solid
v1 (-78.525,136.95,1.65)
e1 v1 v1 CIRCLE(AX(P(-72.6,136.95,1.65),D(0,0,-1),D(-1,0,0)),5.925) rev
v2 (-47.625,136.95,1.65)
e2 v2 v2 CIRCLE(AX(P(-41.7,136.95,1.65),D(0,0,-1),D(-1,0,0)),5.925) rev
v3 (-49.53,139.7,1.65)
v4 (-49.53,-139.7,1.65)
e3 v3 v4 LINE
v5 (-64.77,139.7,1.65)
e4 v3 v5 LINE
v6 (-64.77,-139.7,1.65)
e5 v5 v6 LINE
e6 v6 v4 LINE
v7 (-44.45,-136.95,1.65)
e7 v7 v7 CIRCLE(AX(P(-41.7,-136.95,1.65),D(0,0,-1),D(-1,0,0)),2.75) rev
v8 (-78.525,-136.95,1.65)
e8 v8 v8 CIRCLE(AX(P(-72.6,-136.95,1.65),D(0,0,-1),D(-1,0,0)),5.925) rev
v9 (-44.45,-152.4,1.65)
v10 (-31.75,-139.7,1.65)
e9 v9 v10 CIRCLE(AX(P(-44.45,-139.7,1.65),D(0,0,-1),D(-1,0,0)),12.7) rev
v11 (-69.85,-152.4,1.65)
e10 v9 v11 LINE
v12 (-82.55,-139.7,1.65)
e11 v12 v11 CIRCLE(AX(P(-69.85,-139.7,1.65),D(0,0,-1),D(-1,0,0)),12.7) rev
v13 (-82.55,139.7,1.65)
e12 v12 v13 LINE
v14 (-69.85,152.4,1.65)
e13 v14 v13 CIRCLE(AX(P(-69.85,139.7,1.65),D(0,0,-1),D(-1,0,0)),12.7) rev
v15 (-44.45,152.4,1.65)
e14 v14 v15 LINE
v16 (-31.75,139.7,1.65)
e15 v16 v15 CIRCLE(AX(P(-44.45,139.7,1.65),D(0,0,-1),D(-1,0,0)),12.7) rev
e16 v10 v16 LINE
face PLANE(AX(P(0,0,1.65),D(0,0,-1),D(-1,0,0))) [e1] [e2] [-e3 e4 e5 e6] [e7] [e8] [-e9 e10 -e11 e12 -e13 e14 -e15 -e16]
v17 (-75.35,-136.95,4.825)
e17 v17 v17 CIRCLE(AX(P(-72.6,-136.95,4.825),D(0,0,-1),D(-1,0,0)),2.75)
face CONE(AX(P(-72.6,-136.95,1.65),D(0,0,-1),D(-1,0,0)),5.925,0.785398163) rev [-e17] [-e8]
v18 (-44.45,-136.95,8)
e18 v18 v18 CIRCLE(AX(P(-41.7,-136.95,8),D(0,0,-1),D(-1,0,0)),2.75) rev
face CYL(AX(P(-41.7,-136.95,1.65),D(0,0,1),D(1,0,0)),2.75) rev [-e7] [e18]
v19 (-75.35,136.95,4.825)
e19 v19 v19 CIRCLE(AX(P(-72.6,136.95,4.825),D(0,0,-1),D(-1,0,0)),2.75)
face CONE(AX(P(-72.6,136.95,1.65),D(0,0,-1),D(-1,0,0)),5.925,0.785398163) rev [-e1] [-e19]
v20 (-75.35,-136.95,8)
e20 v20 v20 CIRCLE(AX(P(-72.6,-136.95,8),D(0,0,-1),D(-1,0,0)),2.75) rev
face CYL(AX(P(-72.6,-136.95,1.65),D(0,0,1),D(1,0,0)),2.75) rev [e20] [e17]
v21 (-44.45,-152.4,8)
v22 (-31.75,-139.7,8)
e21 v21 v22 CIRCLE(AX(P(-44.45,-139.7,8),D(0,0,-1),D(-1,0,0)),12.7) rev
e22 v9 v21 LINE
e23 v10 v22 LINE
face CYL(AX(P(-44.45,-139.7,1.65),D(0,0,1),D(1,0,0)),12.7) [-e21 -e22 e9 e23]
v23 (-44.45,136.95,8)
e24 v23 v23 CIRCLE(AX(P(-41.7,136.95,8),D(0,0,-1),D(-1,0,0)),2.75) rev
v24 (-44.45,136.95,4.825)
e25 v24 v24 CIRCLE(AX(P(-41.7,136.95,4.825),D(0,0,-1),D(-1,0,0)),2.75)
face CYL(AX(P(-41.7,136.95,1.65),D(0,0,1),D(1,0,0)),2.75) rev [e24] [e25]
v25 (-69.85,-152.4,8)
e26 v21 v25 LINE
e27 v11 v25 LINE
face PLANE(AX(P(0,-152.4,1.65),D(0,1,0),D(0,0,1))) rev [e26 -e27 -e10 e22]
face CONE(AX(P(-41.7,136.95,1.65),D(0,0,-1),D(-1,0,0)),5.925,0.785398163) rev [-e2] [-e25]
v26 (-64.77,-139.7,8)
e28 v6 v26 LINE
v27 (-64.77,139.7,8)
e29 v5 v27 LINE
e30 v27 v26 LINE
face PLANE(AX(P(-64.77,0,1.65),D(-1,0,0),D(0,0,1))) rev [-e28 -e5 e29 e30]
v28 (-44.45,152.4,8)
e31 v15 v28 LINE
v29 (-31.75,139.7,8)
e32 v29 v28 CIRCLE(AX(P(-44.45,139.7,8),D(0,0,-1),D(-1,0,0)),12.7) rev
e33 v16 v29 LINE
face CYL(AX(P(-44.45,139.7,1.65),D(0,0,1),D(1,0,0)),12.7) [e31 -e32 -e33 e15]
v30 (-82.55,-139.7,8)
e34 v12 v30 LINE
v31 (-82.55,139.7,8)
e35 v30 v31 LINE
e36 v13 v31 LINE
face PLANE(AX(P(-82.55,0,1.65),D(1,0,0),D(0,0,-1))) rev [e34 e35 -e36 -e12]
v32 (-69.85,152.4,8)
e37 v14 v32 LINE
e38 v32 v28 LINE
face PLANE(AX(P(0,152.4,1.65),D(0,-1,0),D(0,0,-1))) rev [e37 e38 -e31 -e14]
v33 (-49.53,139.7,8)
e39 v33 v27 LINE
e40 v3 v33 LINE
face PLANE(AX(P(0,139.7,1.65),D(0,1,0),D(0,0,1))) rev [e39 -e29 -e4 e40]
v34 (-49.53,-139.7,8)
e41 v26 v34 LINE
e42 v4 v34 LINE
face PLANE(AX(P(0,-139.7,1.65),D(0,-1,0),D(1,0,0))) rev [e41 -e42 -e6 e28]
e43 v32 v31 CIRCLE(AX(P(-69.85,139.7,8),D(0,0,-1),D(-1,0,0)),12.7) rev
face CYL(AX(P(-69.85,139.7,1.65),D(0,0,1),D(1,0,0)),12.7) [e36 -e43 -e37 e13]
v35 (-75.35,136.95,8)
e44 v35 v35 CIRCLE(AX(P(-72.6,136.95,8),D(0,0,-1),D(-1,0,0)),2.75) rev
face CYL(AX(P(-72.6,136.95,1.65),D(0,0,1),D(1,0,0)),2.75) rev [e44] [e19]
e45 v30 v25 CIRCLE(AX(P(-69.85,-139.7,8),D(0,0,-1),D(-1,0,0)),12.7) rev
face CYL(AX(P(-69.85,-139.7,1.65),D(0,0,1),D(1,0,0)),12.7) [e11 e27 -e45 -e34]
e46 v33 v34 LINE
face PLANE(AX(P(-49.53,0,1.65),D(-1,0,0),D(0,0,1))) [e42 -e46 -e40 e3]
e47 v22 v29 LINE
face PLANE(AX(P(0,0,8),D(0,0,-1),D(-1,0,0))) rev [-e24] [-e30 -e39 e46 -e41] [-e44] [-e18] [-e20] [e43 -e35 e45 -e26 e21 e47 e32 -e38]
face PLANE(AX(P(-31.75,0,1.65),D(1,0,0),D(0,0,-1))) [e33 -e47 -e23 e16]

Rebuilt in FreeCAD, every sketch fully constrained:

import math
import FreeCAD as App
import Part
import Sketcher

V = App.Vector
Q = App.Units.Quantity


def edges_at(feature, points):
    """Names of the edges that pass closest to the given points."""
    edges = feature.Shape.Edges
    near = lambda p: min(range(len(edges)), key=lambda i: edges[i].distToShape(Part.Vertex(*p))[0])
    return sorted({f"Edge{near(p) + 1}" for p in points})

doc = App.newDocument("Part")
body = doc.addObject("PartDesign::Body", "Body")

# Sketch on XY plane
sketch1 = body.newObject("Sketcher::SketchObject", "Sketch")
sketch1.AttachmentSupport = (doc.getObject("XY_Plane"), [""])
sketch1.MapMode = "FlatFace"
sketch1.AttachmentOffset = App.Placement(V(0, 0, 8), App.Rotation())
sketch1.addGeometry(Part.LineSegment(V(-69.85, -152.4, 0), V(-44.45, -152.4, 0)), False)
sketch1.addGeometry(Part.ArcOfCircle(Part.Circle(V(-44.45, -139.7, 0), V(0, 0, 1), 12.7), math.radians(-90), math.radians(0)), False)
sketch1.addGeometry(Part.LineSegment(V(-31.75, -139.7, 0), V(-31.75, 139.7, 0)), False)
sketch1.addGeometry(Part.ArcOfCircle(Part.Circle(V(-44.45, 139.7, 0), V(0, 0, 1), 12.7), math.radians(0), math.radians(90)), False)
sketch1.addGeometry(Part.LineSegment(V(-44.45, 152.4, 0), V(-69.85, 152.4, 0)), False)
sketch1.addGeometry(Part.ArcOfCircle(Part.Circle(V(-69.85, 139.7, 0), V(0, 0, 1), 12.7), math.radians(90), math.radians(180)), False)
sketch1.addGeometry(Part.LineSegment(V(-82.55, 139.7, 0), V(-82.55, -139.7, 0)), False)
sketch1.addGeometry(Part.ArcOfCircle(Part.Circle(V(-69.85, -139.7, 0), V(0, 0, 1), 12.7), math.radians(180), math.radians(270)), False)
sketch1.addGeometry(Part.ArcOfCircle(Part.Circle(V(-69.85, -139.7, 0), V(0, 0, 1), 2.75), math.radians(90), math.radians(180)), False)
sketch1.addGeometry(Part.ArcOfCircle(Part.Circle(V(-72.6, -136.95, 0), V(0, 0, 1), 2.75), math.radians(0), math.radians(270)), False)
sketch1.addGeometry(Part.ArcOfCircle(Part.Circle(V(-44.45, -139.7, 0), V(0, 0, 1), 2.75), math.radians(0), math.radians(90)), False)
sketch1.addGeometry(Part.ArcOfCircle(Part.Circle(V(-41.7, -136.95, 0), V(0, 0, 1), 2.75), math.radians(-90), math.radians(180)), False)
sketch1.addGeometry(Part.LineSegment(V(-49.53, -139.7, 0), V(-64.77, -139.7, 0)), False)
sketch1.addGeometry(Part.LineSegment(V(-64.77, -139.7, 0), V(-64.77, 139.7, 0)), False)
sketch1.addGeometry(Part.LineSegment(V(-64.77, 139.7, 0), V(-49.53, 139.7, 0)), False)
sketch1.addGeometry(Part.LineSegment(V(-49.53, 139.7, 0), V(-49.53, -139.7, 0)), False)
sketch1.addGeometry(Part.ArcOfCircle(Part.Circle(V(-69.85, 139.7, 0), V(0, 0, 1), 2.75), math.radians(-180), math.radians(-90)), False)
sketch1.addGeometry(Part.ArcOfCircle(Part.Circle(V(-72.6, 136.95, 0), V(0, 0, 1), 2.75), math.radians(90), math.radians(360)), False)
sketch1.addGeometry(Part.ArcOfCircle(Part.Circle(V(-44.45, 139.7, 0), V(0, 0, 1), 2.75), math.radians(-90), math.radians(0)), False)
sketch1.addGeometry(Part.ArcOfCircle(Part.Circle(V(-41.7, 136.95, 0), V(0, 0, 1), 2.75), math.radians(180), math.radians(450)), False)
sketch1.addConstraint(Sketcher.Constraint("Tangent", 0, 2, 1, 1))
sketch1.addConstraint(Sketcher.Constraint("Tangent", 1, 2, 2, 1))
sketch1.addConstraint(Sketcher.Constraint("Tangent", 2, 2, 3, 1))
sketch1.addConstraint(Sketcher.Constraint("Tangent", 3, 2, 4, 1))
sketch1.addConstraint(Sketcher.Constraint("Tangent", 4, 2, 5, 1))
sketch1.addConstraint(Sketcher.Constraint("Tangent", 5, 2, 6, 1))
sketch1.addConstraint(Sketcher.Constraint("Tangent", 6, 2, 7, 1))
sketch1.addConstraint(Sketcher.Constraint("Tangent", 7, 2, 0, 1))
sketch1.addConstraint(Sketcher.Constraint("Coincident", 8, 1, 9, 1))
sketch1.addConstraint(Sketcher.Constraint("Coincident", 9, 2, 8, 2))
sketch1.addConstraint(Sketcher.Constraint("Coincident", 10, 1, 11, 1))
sketch1.addConstraint(Sketcher.Constraint("Coincident", 11, 2, 10, 2))
sketch1.addConstraint(Sketcher.Constraint("Coincident", 12, 2, 13, 1))
sketch1.addConstraint(Sketcher.Constraint("Coincident", 13, 2, 14, 1))
sketch1.addConstraint(Sketcher.Constraint("Coincident", 14, 2, 15, 1))
sketch1.addConstraint(Sketcher.Constraint("Coincident", 15, 2, 12, 1))
sketch1.addConstraint(Sketcher.Constraint("Coincident", 16, 1, 17, 1))
sketch1.addConstraint(Sketcher.Constraint("Coincident", 17, 2, 16, 2))
sketch1.addConstraint(Sketcher.Constraint("Coincident", 18, 1, 19, 1))
sketch1.addConstraint(Sketcher.Constraint("Coincident", 19, 2, 18, 2))
sketch1.addConstraint(Sketcher.Constraint("Horizontal", 0))
sketch1.addConstraint(Sketcher.Constraint("Vertical", 2))
sketch1.addConstraint(Sketcher.Constraint("Horizontal", 4))
sketch1.addConstraint(Sketcher.Constraint("Vertical", 6))
sketch1.addConstraint(Sketcher.Constraint("Horizontal", 12))
sketch1.addConstraint(Sketcher.Constraint("Vertical", 13))
sketch1.addConstraint(Sketcher.Constraint("Horizontal", 14))
sketch1.addConstraint(Sketcher.Constraint("Vertical", 15))
sketch1.addConstraint(Sketcher.Constraint("Coincident", 8, 3, 7, 3))
sketch1.addConstraint(Sketcher.Constraint("Coincident", 10, 3, 1, 3))
sketch1.addConstraint(Sketcher.Constraint("Coincident", 16, 3, 5, 3))
sketch1.addConstraint(Sketcher.Constraint("Coincident", 18, 3, 3, 3))
sketch1.addConstraint(Sketcher.Constraint("Equal", 1, 3))
sketch1.addConstraint(Sketcher.Constraint("Equal", 3, 5))
sketch1.addConstraint(Sketcher.Constraint("Equal", 5, 7))
sketch1.addConstraint(Sketcher.Constraint("Equal", 8, 9))
sketch1.addConstraint(Sketcher.Constraint("Equal", 9, 10))
sketch1.addConstraint(Sketcher.Constraint("Equal", 10, 11))
sketch1.addConstraint(Sketcher.Constraint("Equal", 11, 16))
sketch1.addConstraint(Sketcher.Constraint("Equal", 16, 17))
sketch1.addConstraint(Sketcher.Constraint("Equal", 17, 18))
sketch1.addConstraint(Sketcher.Constraint("Equal", 18, 19))
sketch1.addConstraint(Sketcher.Constraint("Symmetric", 9, 3, 17, 3, -1))
sketch1.addConstraint(Sketcher.Constraint("Symmetric", 11, 3, 19, 3, -1))
sketch1.addConstraint(Sketcher.Constraint("Horizontal", 9, 3, 11, 3))
sketch1.addConstraint(Sketcher.Constraint("Horizontal", 11, 3, 8, 1))
sketch1.addConstraint(Sketcher.Constraint("Horizontal", 10, 1, 12, 2))
sketch1.addConstraint(Sketcher.Constraint("Horizontal", 5, 2, 13, 2))
sketch1.addConstraint(Sketcher.Constraint("Horizontal", 14, 2, 16, 1))
sketch1.addConstraint(Sketcher.Constraint("Vertical", 7, 2, 8, 1))
sketch1.addConstraint(Sketcher.Constraint("Vertical", 19, 3, 10, 1))
sketch1.addConstraint(Sketcher.Constraint("Radius", 1, Q("0.5 in")))
sketch1.addConstraint(Sketcher.Constraint("DistanceX", 0, 1, 0, 2, Q("1 in")))
sketch1.addConstraint(Sketcher.Constraint("DistanceY", 2, 1, 2, 2, Q("11 in")))
sketch1.addConstraint(Sketcher.Constraint("DistanceX", 12, 2, 12, 1, Q("0.6 in")))
sketch1.addConstraint(Sketcher.Constraint("DistanceX", 8, 3, 12, 2, Q("0.2 in")))
sketch1.addConstraint(Sketcher.Constraint("DistanceX", 1, 3, -1, 1, Q("1.75 in")))
sketch1.addConstraint(Sketcher.Constraint("Radius", 8, Q("2.75 mm")))
pad1 = body.newObject("PartDesign::Pad", "Pad")
pad1.Profile = sketch1
pad1.Length = Q("0.25 in")
pad1.Reversed = True

# Sketch on XY plane
sketch2 = body.newObject("Sketcher::SketchObject", "Sketch001")
sketch2.AttachmentSupport = (doc.getObject("XY_Plane"), [""])
sketch2.MapMode = "FlatFace"
sketch2.AttachmentOffset = App.Placement(V(0, 0, 8), App.Rotation())
sketch2.addGeometry(Part.Circle(V(-41.7, 136.95, 0), V(0, 0, 1), 2.75), False)
sketch2.addGeometry(Part.Circle(V(-72.6, 136.95, 0), V(0, 0, 1), 2.75), False)
sketch2.addGeometry(Part.Circle(V(-41.7, -136.95, 0), V(0, 0, 1), 2.75), False)
sketch2.addGeometry(Part.Circle(V(-72.6, -136.95, 0), V(0, 0, 1), 2.75), False)
sketch2.addConstraint(Sketcher.Constraint("Equal", 0, 1))
sketch2.addConstraint(Sketcher.Constraint("Equal", 1, 2))
sketch2.addConstraint(Sketcher.Constraint("Equal", 2, 3))
sketch2.addConstraint(Sketcher.Constraint("Symmetric", 0, 3, 2, 3, -1))
sketch2.addConstraint(Sketcher.Constraint("Symmetric", 1, 3, 3, 3, -1))
sketch2.addConstraint(Sketcher.Constraint("Horizontal", 0, 3, 1, 3))
sketch2.addConstraint(Sketcher.Constraint("Diameter", 0, Q("5.5 mm")))
sketch2.addConstraint(Sketcher.Constraint("DistanceX", 0, 3, -1, 1, Q("41.7 mm")))
sketch2.addConstraint(Sketcher.Constraint("DistanceY", -1, 1, 0, 3, Q("136.95 mm")))
sketch2.addConstraint(Sketcher.Constraint("DistanceX", 1, 3, -1, 1, Q("72.6 mm")))
pocket1 = body.newObject("PartDesign::Pocket", "Pocket")
pocket1.Profile = sketch2
pocket1.Type = "ThroughAll"
doc.recompute()

chamfer = body.newObject("PartDesign::Chamfer", "Chamfer")
chamfer.Base = (pocket1, edges_at(pocket1, [(-39.755, 135.005, 1.65), (-72.6, 134.2, 1.65), (-72.6, -134.2, 1.65)]))
chamfer.Size = Q("0.125 in")

doc.recompute()
